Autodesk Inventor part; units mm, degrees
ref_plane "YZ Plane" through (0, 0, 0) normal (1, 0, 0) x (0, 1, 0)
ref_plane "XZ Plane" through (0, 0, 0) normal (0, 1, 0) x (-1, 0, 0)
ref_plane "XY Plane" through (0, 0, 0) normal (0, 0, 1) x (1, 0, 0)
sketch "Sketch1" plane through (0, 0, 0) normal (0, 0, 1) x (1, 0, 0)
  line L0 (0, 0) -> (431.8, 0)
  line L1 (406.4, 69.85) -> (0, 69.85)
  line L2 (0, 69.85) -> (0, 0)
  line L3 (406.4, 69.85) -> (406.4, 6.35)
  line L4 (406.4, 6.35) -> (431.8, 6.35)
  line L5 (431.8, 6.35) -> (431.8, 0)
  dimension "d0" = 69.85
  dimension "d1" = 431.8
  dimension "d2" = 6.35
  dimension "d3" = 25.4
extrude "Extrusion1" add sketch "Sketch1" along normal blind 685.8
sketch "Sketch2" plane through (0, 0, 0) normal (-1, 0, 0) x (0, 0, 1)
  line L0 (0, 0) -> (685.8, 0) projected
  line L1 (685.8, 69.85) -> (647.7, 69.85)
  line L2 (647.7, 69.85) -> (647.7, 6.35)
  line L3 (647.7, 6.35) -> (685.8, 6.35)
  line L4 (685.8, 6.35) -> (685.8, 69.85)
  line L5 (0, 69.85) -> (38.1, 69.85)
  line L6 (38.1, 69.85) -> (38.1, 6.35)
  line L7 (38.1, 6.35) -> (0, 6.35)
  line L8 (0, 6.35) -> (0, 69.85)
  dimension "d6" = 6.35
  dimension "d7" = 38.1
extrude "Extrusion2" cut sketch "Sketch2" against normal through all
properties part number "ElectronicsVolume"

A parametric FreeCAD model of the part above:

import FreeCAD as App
import Part
import Sketcher

V = App.Vector
Q = App.Units.Quantity

doc = App.newDocument("Part")
params = doc.addObject("Spreadsheet::Sheet", "Params")
for row, (alias, value) in enumerate([
    ("sketch1_width", "17 in"),
    ("sketch1_width2", "1 in"),
    ("sketch1_height", "2.75 in"),
    ("sketch1_height2", "0.25 in"),
    ("pad1_length", "27 in"),
    ("sketch2_height", "1.5 in"),
    ("sketch2_width", "2.5 in"),
], start=1):
    params.set(f"A{row}", alias)
    params.set(f"B{row}", "=" + value)
    params.setAlias(f"B{row}", alias)

body = doc.addObject("PartDesign::Body", "Body")

sketch1 = body.newObject("Sketcher::SketchObject", "Sketch")
sketch1.AttachmentSupport = (doc.getObject("XY_Plane"), [""])
sketch1.MapMode = "FlatFace"
sketch1.addGeometry(Part.LineSegment(V(0, 69.85, 0), V(0, 0, 0)), False)
sketch1.addGeometry(Part.LineSegment(V(0, 0, 0), V(431.8, 0, 0)), False)
sketch1.addGeometry(Part.LineSegment(V(431.8, 0, 0), V(431.8, 6.35, 0)), False)
sketch1.addGeometry(Part.LineSegment(V(431.8, 6.35, 0), V(406.4, 6.35, 0)), False)
sketch1.addGeometry(Part.LineSegment(V(406.4, 6.35, 0), V(406.4, 69.85, 0)), False)
sketch1.addGeometry(Part.LineSegment(V(406.4, 69.85, 0), V(0, 69.85, 0)), False)
sketch1.addConstraint(Sketcher.Constraint("Coincident", 0, 2, 1, 1))
sketch1.addConstraint(Sketcher.Constraint("Coincident", 1, 2, 2, 1))
sketch1.addConstraint(Sketcher.Constraint("Coincident", 2, 2, 3, 1))
sketch1.addConstraint(Sketcher.Constraint("Coincident", 3, 2, 4, 1))
sketch1.addConstraint(Sketcher.Constraint("Coincident", 4, 2, 5, 1))
sketch1.addConstraint(Sketcher.Constraint("Coincident", 5, 2, 0, 1))
sketch1.addConstraint(Sketcher.Constraint("Vertical", 0))
sketch1.addConstraint(Sketcher.Constraint("Horizontal", 1))
sketch1.addConstraint(Sketcher.Constraint("Vertical", 2))
sketch1.addConstraint(Sketcher.Constraint("Horizontal", 3))
sketch1.addConstraint(Sketcher.Constraint("Vertical", 4))
sketch1.addConstraint(Sketcher.Constraint("Horizontal", 5))
sketch1.addConstraint(Sketcher.Constraint("Coincident", 0, 2, -1, 1))
sketch1.addConstraint(Sketcher.Constraint("DistanceX", 1, 1, 1, 2, Q("17 in")))
sketch1.addConstraint(Sketcher.Constraint("DistanceX", 3, 2, 3, 1, Q("1 in")))
sketch1.addConstraint(Sketcher.Constraint("DistanceY", 0, 2, 0, 1, Q("2.75 in")))
sketch1.addConstraint(Sketcher.Constraint("DistanceY", 2, 1, 2, 2, Q("0.25 in")))
sketch1.setExpression("Constraints[13]", "Params.sketch1_width")
sketch1.setExpression("Constraints[14]", "Params.sketch1_width2")
sketch1.setExpression("Constraints[15]", "Params.sketch1_height")
sketch1.setExpression("Constraints[16]", "Params.sketch1_height2")
pad1 = body.newObject("PartDesign::Pad", "Pad")
pad1.Profile = sketch1
pad1.setExpression("Length", "Params.pad1_length")

sketch2 = body.newObject("Sketcher::SketchObject", "Sketch001")
sketch2.AttachmentSupport = (doc.getObject("YZ_Plane"), [""])
sketch2.MapMode = "FlatFace"
sketch2.addGeometry(Part.LineSegment(V(6.35, 685.8, 0), V(69.85, 685.8, 0)), False)
sketch2.addGeometry(Part.LineSegment(V(69.85, 685.8, 0), V(69.85, 647.7, 0)), False)
sketch2.addGeometry(Part.LineSegment(V(69.85, 647.7, 0), V(6.35, 647.7, 0)), False)
sketch2.addGeometry(Part.LineSegment(V(6.35, 647.7, 0), V(6.35, 685.8, 0)), False)
sketch2.addGeometry(Part.LineSegment(V(69.85, 38.1, 0), V(69.85, 0, 0)), False)
sketch2.addGeometry(Part.LineSegment(V(69.85, 0, 0), V(6.35, 0, 0)), False)
sketch2.addGeometry(Part.LineSegment(V(6.35, 0, 0), V(6.35, 38.1, 0)), False)
sketch2.addGeometry(Part.LineSegment(V(6.35, 38.1, 0), V(69.85, 38.1, 0)), False)
sketch2.addConstraint(Sketcher.Constraint("Coincident", 0, 2, 1, 1))
sketch2.addConstraint(Sketcher.Constraint("Coincident", 1, 2, 2, 1))
sketch2.addConstraint(Sketcher.Constraint("Coincident", 2, 2, 3, 1))
sketch2.addConstraint(Sketcher.Constraint("Coincident", 3, 2, 0, 1))
sketch2.addConstraint(Sketcher.Constraint("Coincident", 4, 2, 5, 1))
sketch2.addConstraint(Sketcher.Constraint("Coincident", 5, 2, 6, 1))
sketch2.addConstraint(Sketcher.Constraint("Coincident", 6, 2, 7, 1))
sketch2.addConstraint(Sketcher.Constraint("Coincident", 7, 2, 4, 1))
sketch2.addConstraint(Sketcher.Constraint("Horizontal", 0))
sketch2.addConstraint(Sketcher.Constraint("Vertical", 1))
sketch2.addConstraint(Sketcher.Constraint("Horizontal", 2))
sketch2.addConstraint(Sketcher.Constraint("Vertical", 3))
sketch2.addConstraint(Sketcher.Constraint("Vertical", 4))
sketch2.addConstraint(Sketcher.Constraint("Horizontal", 5))
sketch2.addConstraint(Sketcher.Constraint("Vertical", 6))
sketch2.addConstraint(Sketcher.Constraint("Horizontal", 7))
sketch2.addConstraint(Sketcher.Constraint("PointOnObject", 4, 2, -1))
sketch2.addConstraint(Sketcher.Constraint("Vertical", 1, 2, 4, 2))
sketch2.addConstraint(Sketcher.Constraint("Vertical", 3, 2, 5, 2))
sketch2.addConstraint(Sketcher.Constraint("Equal", 3, 4))
sketch2.addConstraint(Sketcher.Constraint("DistanceY", 1, 2, 1, 1, Q("1.5 in")))
sketch2.addConstraint(Sketcher.Constraint("DistanceX", -1, 1, 2, 2, Q("0.25 in")))
sketch2.addConstraint(Sketcher.Constraint("DistanceX", 0, 1, 0, 2, Q("2.5 in")))
sketch2.addConstraint(Sketcher.Constraint("DistanceY", -1, 1, 0, 2, Q("27 in")))
sketch2.setExpression("Constraints[20]", "Params.sketch2_height")
sketch2.setExpression("Constraints[22]", "Params.sketch2_width")
pocket1 = body.newObject("PartDesign::Pocket", "Pocket")
pocket1.Profile = sketch2
pocket1.Type = "ThroughAll"
pocket1.Reversed = True

doc.recompute()
